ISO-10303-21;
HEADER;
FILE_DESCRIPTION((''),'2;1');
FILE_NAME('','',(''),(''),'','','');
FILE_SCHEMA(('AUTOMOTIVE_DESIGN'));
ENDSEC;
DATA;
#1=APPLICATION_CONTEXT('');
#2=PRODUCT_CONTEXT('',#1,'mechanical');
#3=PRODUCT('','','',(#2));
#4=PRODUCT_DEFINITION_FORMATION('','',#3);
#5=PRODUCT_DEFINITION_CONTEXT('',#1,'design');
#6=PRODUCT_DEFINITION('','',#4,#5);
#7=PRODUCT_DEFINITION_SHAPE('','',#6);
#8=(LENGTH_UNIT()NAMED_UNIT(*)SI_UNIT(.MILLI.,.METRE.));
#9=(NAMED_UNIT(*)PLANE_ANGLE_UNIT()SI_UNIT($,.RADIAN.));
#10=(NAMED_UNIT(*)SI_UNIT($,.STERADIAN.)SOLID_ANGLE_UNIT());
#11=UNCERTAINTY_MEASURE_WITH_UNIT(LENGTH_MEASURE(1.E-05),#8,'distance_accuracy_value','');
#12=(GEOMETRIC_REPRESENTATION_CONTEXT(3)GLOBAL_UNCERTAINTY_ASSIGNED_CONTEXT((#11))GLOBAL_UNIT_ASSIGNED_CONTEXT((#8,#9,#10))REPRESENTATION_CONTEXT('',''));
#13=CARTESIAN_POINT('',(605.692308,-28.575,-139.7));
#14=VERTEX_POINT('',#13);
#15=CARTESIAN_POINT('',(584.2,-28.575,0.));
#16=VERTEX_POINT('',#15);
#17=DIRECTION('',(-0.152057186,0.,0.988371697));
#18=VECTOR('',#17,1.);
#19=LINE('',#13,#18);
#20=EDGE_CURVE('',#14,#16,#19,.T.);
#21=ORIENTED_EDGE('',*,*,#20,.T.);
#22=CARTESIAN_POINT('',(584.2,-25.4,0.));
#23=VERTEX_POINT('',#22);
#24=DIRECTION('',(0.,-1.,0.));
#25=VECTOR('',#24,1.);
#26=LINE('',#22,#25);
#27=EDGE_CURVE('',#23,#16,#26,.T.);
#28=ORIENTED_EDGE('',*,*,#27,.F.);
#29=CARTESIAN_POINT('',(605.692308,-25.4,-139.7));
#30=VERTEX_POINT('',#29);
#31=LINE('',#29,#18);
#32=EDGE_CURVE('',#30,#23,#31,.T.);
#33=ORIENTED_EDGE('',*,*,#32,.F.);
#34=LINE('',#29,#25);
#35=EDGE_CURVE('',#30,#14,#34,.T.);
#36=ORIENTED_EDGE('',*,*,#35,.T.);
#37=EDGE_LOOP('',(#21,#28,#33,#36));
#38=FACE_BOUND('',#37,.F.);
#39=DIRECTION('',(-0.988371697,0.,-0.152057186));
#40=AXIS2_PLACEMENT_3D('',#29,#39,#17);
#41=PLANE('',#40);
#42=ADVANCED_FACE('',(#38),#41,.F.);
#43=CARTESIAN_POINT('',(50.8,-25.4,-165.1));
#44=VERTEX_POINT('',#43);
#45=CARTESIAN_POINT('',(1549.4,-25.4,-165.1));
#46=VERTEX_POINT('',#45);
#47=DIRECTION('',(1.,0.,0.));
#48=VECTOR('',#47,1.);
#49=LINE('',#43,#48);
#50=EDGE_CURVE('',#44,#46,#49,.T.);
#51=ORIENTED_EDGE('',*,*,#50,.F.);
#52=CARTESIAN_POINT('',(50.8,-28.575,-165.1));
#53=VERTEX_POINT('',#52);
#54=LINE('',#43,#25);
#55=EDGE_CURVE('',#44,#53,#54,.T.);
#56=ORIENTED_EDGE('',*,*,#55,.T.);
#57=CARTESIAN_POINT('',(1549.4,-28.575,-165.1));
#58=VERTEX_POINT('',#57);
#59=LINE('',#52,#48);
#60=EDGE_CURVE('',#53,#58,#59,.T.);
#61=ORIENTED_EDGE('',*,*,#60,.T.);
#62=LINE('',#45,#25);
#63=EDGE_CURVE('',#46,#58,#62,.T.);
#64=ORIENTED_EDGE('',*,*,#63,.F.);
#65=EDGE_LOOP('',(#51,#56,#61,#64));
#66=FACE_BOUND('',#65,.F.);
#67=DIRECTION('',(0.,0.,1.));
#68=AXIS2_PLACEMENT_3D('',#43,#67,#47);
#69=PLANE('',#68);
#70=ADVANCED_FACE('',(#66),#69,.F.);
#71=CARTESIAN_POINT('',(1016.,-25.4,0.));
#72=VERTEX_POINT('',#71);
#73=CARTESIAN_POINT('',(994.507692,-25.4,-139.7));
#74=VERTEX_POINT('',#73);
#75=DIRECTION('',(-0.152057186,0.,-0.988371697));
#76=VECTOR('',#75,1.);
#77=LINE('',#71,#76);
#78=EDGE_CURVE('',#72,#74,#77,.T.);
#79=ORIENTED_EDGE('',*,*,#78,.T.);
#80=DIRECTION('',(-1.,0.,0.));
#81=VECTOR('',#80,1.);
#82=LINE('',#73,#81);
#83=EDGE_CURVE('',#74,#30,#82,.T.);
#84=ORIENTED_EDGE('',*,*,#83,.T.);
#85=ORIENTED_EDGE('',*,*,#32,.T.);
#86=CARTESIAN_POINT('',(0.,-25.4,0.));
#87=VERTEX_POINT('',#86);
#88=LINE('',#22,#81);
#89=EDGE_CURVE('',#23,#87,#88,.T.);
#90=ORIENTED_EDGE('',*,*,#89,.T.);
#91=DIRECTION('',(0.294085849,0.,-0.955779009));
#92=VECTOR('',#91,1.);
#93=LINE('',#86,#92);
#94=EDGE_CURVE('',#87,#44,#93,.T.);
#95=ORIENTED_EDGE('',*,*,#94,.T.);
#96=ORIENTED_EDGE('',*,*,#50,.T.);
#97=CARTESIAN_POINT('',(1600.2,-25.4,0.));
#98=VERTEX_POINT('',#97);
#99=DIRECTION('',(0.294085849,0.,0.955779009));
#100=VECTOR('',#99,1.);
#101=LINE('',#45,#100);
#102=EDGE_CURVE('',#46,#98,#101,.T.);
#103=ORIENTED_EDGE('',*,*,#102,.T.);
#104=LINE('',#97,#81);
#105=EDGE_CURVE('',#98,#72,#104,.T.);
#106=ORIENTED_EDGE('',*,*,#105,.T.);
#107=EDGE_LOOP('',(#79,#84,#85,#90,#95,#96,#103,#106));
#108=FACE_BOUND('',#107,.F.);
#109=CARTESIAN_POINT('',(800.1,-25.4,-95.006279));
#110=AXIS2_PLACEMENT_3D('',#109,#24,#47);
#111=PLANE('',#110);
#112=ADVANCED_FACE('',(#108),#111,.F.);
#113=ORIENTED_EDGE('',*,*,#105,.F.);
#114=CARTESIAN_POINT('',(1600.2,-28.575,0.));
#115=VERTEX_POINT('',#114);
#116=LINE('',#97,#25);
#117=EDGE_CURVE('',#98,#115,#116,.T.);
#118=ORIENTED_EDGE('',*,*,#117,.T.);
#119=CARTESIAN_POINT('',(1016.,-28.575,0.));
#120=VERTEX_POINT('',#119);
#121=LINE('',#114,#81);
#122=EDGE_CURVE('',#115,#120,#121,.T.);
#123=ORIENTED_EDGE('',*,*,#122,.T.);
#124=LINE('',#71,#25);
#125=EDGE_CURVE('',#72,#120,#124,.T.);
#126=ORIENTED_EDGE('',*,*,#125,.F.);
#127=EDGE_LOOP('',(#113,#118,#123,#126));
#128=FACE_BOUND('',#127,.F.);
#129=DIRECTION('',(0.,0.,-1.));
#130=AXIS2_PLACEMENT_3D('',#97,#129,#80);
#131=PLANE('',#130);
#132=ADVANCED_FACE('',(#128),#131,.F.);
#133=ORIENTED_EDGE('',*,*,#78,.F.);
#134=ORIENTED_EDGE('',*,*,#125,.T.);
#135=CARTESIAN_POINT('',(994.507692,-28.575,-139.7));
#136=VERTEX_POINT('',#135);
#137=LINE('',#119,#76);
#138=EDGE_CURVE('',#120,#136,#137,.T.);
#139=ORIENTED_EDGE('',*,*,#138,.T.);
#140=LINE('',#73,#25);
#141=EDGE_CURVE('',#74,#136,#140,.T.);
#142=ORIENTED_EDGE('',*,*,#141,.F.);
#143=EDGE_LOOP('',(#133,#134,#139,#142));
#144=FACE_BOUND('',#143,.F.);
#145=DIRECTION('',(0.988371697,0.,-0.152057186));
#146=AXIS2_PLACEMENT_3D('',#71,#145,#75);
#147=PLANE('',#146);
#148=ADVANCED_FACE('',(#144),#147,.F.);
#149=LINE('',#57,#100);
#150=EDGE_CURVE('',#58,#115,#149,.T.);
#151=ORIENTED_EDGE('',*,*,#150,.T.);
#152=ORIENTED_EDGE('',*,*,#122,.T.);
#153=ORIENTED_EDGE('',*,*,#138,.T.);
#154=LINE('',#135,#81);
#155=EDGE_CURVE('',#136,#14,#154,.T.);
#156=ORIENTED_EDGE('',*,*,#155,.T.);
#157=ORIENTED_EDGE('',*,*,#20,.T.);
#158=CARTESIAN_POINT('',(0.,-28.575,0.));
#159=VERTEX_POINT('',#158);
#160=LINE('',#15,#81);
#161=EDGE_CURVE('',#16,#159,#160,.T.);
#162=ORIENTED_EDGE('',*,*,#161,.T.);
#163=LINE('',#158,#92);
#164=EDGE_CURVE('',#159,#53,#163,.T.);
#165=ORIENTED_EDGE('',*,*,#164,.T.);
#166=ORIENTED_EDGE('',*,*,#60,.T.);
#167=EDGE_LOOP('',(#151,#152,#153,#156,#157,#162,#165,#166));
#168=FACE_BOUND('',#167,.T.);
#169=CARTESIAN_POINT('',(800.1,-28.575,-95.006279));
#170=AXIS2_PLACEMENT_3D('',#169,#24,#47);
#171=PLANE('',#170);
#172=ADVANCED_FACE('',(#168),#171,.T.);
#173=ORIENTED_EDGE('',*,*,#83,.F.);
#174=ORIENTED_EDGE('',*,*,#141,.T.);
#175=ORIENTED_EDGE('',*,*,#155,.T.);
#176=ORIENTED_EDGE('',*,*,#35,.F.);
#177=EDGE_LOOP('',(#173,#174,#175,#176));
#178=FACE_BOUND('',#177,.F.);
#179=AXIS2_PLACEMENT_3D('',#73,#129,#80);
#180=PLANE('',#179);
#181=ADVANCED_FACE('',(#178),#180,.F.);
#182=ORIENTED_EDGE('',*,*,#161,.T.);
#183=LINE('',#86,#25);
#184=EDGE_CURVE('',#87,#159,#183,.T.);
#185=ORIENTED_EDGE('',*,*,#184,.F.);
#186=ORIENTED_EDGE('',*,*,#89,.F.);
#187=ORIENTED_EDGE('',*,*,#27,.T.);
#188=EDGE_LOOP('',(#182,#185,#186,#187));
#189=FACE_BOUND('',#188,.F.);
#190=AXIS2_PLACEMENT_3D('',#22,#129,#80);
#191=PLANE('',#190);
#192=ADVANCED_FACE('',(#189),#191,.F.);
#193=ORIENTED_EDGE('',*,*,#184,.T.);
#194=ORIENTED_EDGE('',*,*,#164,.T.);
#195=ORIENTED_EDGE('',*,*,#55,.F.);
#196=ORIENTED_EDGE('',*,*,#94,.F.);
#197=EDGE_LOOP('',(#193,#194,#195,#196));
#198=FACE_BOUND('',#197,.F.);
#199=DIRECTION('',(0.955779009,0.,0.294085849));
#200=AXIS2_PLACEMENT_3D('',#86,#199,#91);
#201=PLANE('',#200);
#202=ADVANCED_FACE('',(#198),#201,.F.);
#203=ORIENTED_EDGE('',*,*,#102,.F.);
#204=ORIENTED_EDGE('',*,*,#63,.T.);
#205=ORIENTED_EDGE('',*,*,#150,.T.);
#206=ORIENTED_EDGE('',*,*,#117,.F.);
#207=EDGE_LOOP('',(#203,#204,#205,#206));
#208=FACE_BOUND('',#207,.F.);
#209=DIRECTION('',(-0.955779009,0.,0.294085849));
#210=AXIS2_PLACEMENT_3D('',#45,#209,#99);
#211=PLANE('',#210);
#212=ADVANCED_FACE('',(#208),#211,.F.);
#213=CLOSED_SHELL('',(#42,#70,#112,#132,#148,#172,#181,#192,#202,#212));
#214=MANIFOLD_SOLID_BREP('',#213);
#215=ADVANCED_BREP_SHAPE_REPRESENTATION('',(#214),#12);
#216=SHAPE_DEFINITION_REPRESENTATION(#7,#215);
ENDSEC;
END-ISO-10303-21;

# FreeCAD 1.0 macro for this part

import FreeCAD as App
import Part
import Sketcher
Q = App.Units.Quantity


def add_polygon(sketch, points):
    """Adds a closed chain of lines whose ends are joined by coincident constraints."""
    first, n = sketch.GeometryCount, len(points)
    for a, b in zip(points, points[1:] + points[:1]):
        sketch.addGeometry(Part.LineSegment(App.Vector(*a, 0), App.Vector(*b, 0)), False)
    for i in range(n):
        sketch.addConstraint(Sketcher.Constraint("Coincident", first + i, 2, first + (i + 1) % n, 1))

doc = App.newDocument("Part")
body = doc.addObject("PartDesign::Body", "Body")

# Sketch on XZ plane
sketch1 = body.newObject("Sketcher::SketchObject", "Sketch")
sketch1.AttachmentSupport = (doc.getObject("XZ_Plane"), [""])
sketch1.MapMode = "FlatFace"
sketch1.AttachmentOffset = App.Placement(App.Vector(0, 0, 1 * 25.4), App.Rotation())
add_polygon(sketch1, [(584.2, 0), (0, 0), (50.8, -165.1), (1549.4, -165.1), (1600.2, 0), (1016, 0), (994.507692, -139.7), (605.692308, -139.7)])  # lines 0-7
sketch1.addConstraint(Sketcher.Constraint("Horizontal", 0))
sketch1.addConstraint(Sketcher.Constraint("Horizontal", 2))
sketch1.addConstraint(Sketcher.Constraint("Horizontal", 4))
sketch1.addConstraint(Sketcher.Constraint("Horizontal", 6))
sketch1.addConstraint(Sketcher.Constraint("Coincident", 0, 2, -1, 1))
sketch1.addConstraint(Sketcher.Constraint("PointOnObject", 3, 2, -1))
sketch1.addConstraint(Sketcher.Constraint("Equal", 0, 4))
sketch1.addConstraint(Sketcher.Constraint("Equal", 1, 3))
sketch1.addConstraint(Sketcher.Constraint("Equal", 5, 7))
sketch1.addConstraint(Sketcher.Constraint("DistanceX", 0, 2, 0, 1, Q("23 in")))
sketch1.addConstraint(Sketcher.Constraint("DistanceX", 2, 1, 2, 2, Q("59 in")))
sketch1.addConstraint(Sketcher.Constraint("DistanceX", -1, 1, 1, 2, Q("2 in")))
sketch1.addConstraint(Sketcher.Constraint("DistanceY", 2, 2, 5, 2, Q("1 in")))
sketch1.addConstraint(Sketcher.Constraint("DistanceY", 1, 2, -1, 1, Q("6.5 in")))
sketch1.addConstraint(Sketcher.Constraint("DistanceX", 6, 2, 6, 1, Q("388.815384 mm")))
pad1 = body.newObject("PartDesign::Pad", "Pad")
pad1.Profile = sketch1
pad1.Length = Q("0.125 in")

doc.recompute()
